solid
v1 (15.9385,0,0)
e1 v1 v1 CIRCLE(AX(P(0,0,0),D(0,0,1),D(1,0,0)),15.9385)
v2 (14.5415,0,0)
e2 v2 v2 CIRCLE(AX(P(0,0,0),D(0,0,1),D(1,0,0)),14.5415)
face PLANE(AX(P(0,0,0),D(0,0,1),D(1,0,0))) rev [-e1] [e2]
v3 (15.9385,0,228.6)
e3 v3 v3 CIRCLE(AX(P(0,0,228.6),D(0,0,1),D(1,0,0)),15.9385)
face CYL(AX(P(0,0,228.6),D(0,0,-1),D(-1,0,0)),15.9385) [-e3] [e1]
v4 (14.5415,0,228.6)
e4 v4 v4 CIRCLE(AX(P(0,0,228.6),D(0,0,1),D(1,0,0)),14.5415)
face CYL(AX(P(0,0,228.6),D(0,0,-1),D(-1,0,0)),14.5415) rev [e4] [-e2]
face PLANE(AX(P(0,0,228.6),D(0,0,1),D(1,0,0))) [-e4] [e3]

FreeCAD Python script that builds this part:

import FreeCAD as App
import Part
import Sketcher
from FreeCAD import Vector
Q = App.Units.Quantity

doc = App.newDocument("Part")
body = doc.addObject("PartDesign::Body", "Body")

sketch1 = doc.addObject("Sketcher::SketchObject", "Sketch")
body.addObject(sketch1)
sketch1.AttachmentSupport = (doc.XY_Plane, [""])
sketch1.MapMode = "FlatFace"
sketch1.addGeometry(Part.Circle(Vector(0, 0, 0), Vector(0, 0, 1), 16), False)
sketch1.addGeometry(Part.Circle(Vector(0, 0, 0), Vector(0, 0, 1), 15), False)
sketch1.addConstraint(Sketcher.Constraint("Coincident", 0, 3, -1, 1))
sketch1.addConstraint(Sketcher.Constraint("Coincident", 1, 3, -1, 1))
sketch1.addConstraint(Sketcher.Constraint("Diameter", 0, Q("1.255 in")))
sketch1.addConstraint(Sketcher.Constraint("Diameter", 1, Q("1.145 in")))
pad1 = doc.addObject("PartDesign::Pad", "Pad")
body.addObject(pad1)
pad1.Profile = sketch1
pad1.Length = Q("9 in")

doc.recompute()
